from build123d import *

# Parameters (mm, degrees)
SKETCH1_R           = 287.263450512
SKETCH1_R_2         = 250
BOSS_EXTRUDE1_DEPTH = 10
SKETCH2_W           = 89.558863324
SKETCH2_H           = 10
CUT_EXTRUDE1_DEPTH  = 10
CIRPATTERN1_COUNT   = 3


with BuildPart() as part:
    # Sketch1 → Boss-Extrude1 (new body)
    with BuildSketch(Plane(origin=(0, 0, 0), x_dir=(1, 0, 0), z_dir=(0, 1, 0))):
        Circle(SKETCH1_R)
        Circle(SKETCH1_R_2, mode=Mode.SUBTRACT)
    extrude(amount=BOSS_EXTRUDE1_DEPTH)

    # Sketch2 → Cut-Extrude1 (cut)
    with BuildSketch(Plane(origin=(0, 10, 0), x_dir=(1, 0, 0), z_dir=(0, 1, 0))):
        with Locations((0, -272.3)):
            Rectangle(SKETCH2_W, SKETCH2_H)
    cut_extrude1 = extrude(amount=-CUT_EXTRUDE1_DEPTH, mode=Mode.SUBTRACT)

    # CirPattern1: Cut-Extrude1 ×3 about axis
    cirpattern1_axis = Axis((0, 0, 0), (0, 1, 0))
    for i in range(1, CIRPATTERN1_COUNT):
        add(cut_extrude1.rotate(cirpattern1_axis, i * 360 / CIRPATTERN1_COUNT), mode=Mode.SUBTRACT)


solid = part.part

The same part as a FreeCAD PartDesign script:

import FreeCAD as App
import Part
import Sketcher

V = App.Vector

doc = App.newDocument("Part")
body = doc.addObject("PartDesign::Body", "Body")

# Sketch on XZ plane
sketch1 = body.newObject("Sketcher::SketchObject", "Sketch")
sketch1.AttachmentSupport = (doc.getObject("XZ_Plane"), [""])
sketch1.MapMode = "FlatFace"
sketch1.addGeometry(Part.Circle(V(0, 0, 0), V(0, 0, 1), 287.263451), False)
sketch1.addGeometry(Part.Circle(V(0, 0, 0), V(0, 0, 1), 250), False)
sketch1.addConstraint(Sketcher.Constraint("Coincident", 0, 3, -1, 1))
sketch1.addConstraint(Sketcher.Constraint("Coincident", 1, 3, -1, 1))
sketch1.addConstraint(Sketcher.Constraint("Diameter", 1, 500.0))
sketch1.addConstraint(Sketcher.Constraint("Diameter", 0, 574.526901))
pad1 = body.newObject("PartDesign::Pad", "Pad")
pad1.Profile = sketch1
pad1.Length = 10
pad1.Reversed = True

# Sketch on XZ plane
sketch2 = body.newObject("Sketcher::SketchObject", "Sketch001")
sketch2.AttachmentSupport = (doc.getObject("XZ_Plane"), [""])
sketch2.MapMode = "FlatFace"
sketch2.AttachmentOffset = App.Placement(V(0, 0, -10), App.Rotation())
sketch2.addGeometry(Part.LineSegment(V(-44.779432, 267.3, 0), V(-44.779432, 277.3, 0)), False)
sketch2.addGeometry(Part.LineSegment(V(-44.779432, 277.3, 0), V(44.779432, 277.3, 0)), False)
sketch2.addGeometry(Part.LineSegment(V(44.779432, 277.3, 0), V(44.779432, 267.3, 0)), False)
sketch2.addGeometry(Part.LineSegment(V(44.779432, 267.3, 0), V(-44.779432, 267.3, 0)), False)
sketch2.addConstraint(Sketcher.Constraint("Coincident", 0, 2, 1, 1))
sketch2.addConstraint(Sketcher.Constraint("Coincident", 1, 2, 2, 1))
sketch2.addConstraint(Sketcher.Constraint("Coincident", 2, 2, 3, 1))
sketch2.addConstraint(Sketcher.Constraint("Coincident", 3, 2, 0, 1))
sketch2.addConstraint(Sketcher.Constraint("Vertical", 0))
sketch2.addConstraint(Sketcher.Constraint("Horizontal", 1))
sketch2.addConstraint(Sketcher.Constraint("Vertical", 2))
sketch2.addConstraint(Sketcher.Constraint("Horizontal", 3))
sketch2.addConstraint(Sketcher.Constraint("DistanceY", 0, 1, 0, 2, 10.0))
sketch2.addConstraint(Sketcher.Constraint("DistanceY", -1, 1, 0, 2, 277.3))
sketch2.addConstraint(Sketcher.Constraint("DistanceX", 1, 1, 1, 2, 89.558863))
sketch2.addConstraint(Sketcher.Constraint("DistanceX", 0, 2, -1, 1, 44.779432))
pocket1 = body.newObject("PartDesign::Pocket", "Pocket")
pocket1.Profile = sketch2
pocket1.Length = 10
pocket1.Reversed = True
doc.recompute()

polarpattern = body.newObject("PartDesign::PolarPattern", "PolarPattern")
polarpattern.Originals = [pocket1]
polarpattern.Axis = (doc.getObject("Y_Axis"), [""])
polarpattern.Angle = 360
polarpattern.Occurrences = 3
body.Tip = polarpattern

doc.recompute()
